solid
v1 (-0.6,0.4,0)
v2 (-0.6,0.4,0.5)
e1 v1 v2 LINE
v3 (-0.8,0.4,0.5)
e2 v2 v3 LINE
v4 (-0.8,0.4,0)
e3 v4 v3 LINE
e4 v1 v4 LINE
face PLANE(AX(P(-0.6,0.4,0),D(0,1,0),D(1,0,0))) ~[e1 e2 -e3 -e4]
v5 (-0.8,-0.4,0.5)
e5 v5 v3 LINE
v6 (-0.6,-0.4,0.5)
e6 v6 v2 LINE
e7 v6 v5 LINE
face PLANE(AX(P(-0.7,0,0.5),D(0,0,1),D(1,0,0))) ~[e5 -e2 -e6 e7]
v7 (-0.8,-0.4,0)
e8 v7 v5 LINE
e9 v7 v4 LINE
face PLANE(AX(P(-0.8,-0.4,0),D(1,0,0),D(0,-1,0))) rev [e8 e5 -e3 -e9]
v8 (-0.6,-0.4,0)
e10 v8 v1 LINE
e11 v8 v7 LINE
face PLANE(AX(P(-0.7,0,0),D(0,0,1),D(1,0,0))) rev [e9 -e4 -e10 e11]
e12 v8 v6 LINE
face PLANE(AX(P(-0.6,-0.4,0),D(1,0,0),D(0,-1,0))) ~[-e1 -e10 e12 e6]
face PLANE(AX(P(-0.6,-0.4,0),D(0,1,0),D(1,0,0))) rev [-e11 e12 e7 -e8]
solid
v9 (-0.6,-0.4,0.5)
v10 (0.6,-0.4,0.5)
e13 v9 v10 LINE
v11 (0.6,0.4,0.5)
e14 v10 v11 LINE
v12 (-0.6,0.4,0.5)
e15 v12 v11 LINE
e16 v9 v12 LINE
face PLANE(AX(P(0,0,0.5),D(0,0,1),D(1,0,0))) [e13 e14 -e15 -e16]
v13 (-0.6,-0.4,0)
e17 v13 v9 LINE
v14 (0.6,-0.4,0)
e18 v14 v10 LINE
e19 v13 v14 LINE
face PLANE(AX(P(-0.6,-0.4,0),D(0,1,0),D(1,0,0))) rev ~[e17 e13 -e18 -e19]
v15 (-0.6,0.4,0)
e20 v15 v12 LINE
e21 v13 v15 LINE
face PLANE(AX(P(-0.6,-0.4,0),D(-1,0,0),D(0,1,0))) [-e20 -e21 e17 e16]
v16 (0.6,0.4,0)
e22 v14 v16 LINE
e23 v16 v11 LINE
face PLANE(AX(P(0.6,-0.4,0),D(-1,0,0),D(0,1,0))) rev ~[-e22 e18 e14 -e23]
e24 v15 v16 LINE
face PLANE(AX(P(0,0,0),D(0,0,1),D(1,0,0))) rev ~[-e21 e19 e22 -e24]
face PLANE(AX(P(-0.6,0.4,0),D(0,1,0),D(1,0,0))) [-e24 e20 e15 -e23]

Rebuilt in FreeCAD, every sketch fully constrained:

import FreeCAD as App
import Part
import Sketcher

V = App.Vector
Q = App.Units.Quantity

doc = App.newDocument("Part")
body = doc.addObject("PartDesign::Body", "Body")

sketch1 = doc.addObject("Sketcher::SketchObject", "Sketch")
body.addObject(sketch1)
sketch1.AttachmentSupport = (doc.XY_Plane, [""])
sketch1.MapMode = "FlatFace"
sketch1.addGeometry([
    Part.LineSegment(V(-0.6, 0.4, 0), V(-0.6, -0.4, 0)),
    Part.LineSegment(V(-0.6, -0.4, 0), V(0.6, -0.4, 0)),
    Part.LineSegment(V(0.6, -0.4, 0), V(0.6, 0.4, 0)),
    Part.LineSegment(V(0.6, 0.4, 0), V(-0.6, 0.4, 0)),
], False)
sketch1.addConstraint([
    Sketcher.Constraint("Coincident", 0, 2, 1, 1),
    Sketcher.Constraint("Coincident", 1, 2, 2, 1),
    Sketcher.Constraint("Coincident", 2, 2, 3, 1),
    Sketcher.Constraint("Coincident", 3, 2, 0, 1),
    Sketcher.Constraint("Vertical", 0),
    Sketcher.Constraint("Horizontal", 1),
    Sketcher.Constraint("Vertical", 2),
    Sketcher.Constraint("Horizontal", 3),
    Sketcher.Constraint("Symmetric", 0, 2, 2, 2, -1, 1),
    Sketcher.Constraint("DistanceX", 1, 1, 1, 2, Q("1.2 mm")),
    Sketcher.Constraint("DistanceY", 0, 2, 0, 1, Q("0.8 mm")),
])
pad1 = doc.addObject("PartDesign::Pad", "Pad")
body.addObject(pad1)
pad1.Profile = sketch1
pad1.Length = 0.5
body2 = doc.addObject("PartDesign::Body", "Body001")

sketch2 = doc.addObject("Sketcher::SketchObject", "Sketch001")
body2.addObject(sketch2)
sketch2.AttachmentSupport = (doc.getObject("XY_Plane001"), [""])
sketch2.MapMode = "FlatFace"
sketch2.addGeometry([
    Part.LineSegment(V(0.6, 0.4, 0), V(0.6, -0.4, 0)),
    Part.LineSegment(V(0.6, -0.4, 0), V(0.8, -0.4, 0)),
    Part.LineSegment(V(0.8, -0.4, 0), V(0.8, 0.4, 0)),
    Part.LineSegment(V(0.8, 0.4, 0), V(0.6, 0.4, 0)),
], False)
sketch2.addConstraint([
    Sketcher.Constraint("Coincident", 0, 2, 1, 1),
    Sketcher.Constraint("Coincident", 1, 2, 2, 1),
    Sketcher.Constraint("Coincident", 2, 2, 3, 1),
    Sketcher.Constraint("Coincident", 3, 2, 0, 1),
    Sketcher.Constraint("Vertical", 0),
    Sketcher.Constraint("Horizontal", 1),
    Sketcher.Constraint("Vertical", 2),
    Sketcher.Constraint("Horizontal", 3),
    Sketcher.Constraint("DistanceX", 1, 1, 1, 2, Q("0.2 mm")),
    Sketcher.Constraint("DistanceY", 0, 2, 0, 1, Q("0.8 mm")),
    Sketcher.Constraint("DistanceX", -1, 1, 0, 2, Q("0.6 mm")),
    Sketcher.Constraint("DistanceY", 0, 2, -1, 1, Q("0.4 mm")),
])
pad2 = doc.addObject("PartDesign::Pad", "Pad001")
body2.addObject(pad2)
pad2.Profile = sketch2
pad2.Length = 0.5
body3 = doc.addObject("PartDesign::Body", "Body002")
doc.recompute()

mirroring = doc.addObject("Part::Mirroring", "Mirroring")
mirroring.Source = body2
mirroring.Base = V(0, 0, 0)
mirroring.Normal = V(1, 0, 0)
body3.BaseFeature = mirroring
doc.recompute()
body2.Visibility = False
mirroring.Visibility = False

doc.recompute()
